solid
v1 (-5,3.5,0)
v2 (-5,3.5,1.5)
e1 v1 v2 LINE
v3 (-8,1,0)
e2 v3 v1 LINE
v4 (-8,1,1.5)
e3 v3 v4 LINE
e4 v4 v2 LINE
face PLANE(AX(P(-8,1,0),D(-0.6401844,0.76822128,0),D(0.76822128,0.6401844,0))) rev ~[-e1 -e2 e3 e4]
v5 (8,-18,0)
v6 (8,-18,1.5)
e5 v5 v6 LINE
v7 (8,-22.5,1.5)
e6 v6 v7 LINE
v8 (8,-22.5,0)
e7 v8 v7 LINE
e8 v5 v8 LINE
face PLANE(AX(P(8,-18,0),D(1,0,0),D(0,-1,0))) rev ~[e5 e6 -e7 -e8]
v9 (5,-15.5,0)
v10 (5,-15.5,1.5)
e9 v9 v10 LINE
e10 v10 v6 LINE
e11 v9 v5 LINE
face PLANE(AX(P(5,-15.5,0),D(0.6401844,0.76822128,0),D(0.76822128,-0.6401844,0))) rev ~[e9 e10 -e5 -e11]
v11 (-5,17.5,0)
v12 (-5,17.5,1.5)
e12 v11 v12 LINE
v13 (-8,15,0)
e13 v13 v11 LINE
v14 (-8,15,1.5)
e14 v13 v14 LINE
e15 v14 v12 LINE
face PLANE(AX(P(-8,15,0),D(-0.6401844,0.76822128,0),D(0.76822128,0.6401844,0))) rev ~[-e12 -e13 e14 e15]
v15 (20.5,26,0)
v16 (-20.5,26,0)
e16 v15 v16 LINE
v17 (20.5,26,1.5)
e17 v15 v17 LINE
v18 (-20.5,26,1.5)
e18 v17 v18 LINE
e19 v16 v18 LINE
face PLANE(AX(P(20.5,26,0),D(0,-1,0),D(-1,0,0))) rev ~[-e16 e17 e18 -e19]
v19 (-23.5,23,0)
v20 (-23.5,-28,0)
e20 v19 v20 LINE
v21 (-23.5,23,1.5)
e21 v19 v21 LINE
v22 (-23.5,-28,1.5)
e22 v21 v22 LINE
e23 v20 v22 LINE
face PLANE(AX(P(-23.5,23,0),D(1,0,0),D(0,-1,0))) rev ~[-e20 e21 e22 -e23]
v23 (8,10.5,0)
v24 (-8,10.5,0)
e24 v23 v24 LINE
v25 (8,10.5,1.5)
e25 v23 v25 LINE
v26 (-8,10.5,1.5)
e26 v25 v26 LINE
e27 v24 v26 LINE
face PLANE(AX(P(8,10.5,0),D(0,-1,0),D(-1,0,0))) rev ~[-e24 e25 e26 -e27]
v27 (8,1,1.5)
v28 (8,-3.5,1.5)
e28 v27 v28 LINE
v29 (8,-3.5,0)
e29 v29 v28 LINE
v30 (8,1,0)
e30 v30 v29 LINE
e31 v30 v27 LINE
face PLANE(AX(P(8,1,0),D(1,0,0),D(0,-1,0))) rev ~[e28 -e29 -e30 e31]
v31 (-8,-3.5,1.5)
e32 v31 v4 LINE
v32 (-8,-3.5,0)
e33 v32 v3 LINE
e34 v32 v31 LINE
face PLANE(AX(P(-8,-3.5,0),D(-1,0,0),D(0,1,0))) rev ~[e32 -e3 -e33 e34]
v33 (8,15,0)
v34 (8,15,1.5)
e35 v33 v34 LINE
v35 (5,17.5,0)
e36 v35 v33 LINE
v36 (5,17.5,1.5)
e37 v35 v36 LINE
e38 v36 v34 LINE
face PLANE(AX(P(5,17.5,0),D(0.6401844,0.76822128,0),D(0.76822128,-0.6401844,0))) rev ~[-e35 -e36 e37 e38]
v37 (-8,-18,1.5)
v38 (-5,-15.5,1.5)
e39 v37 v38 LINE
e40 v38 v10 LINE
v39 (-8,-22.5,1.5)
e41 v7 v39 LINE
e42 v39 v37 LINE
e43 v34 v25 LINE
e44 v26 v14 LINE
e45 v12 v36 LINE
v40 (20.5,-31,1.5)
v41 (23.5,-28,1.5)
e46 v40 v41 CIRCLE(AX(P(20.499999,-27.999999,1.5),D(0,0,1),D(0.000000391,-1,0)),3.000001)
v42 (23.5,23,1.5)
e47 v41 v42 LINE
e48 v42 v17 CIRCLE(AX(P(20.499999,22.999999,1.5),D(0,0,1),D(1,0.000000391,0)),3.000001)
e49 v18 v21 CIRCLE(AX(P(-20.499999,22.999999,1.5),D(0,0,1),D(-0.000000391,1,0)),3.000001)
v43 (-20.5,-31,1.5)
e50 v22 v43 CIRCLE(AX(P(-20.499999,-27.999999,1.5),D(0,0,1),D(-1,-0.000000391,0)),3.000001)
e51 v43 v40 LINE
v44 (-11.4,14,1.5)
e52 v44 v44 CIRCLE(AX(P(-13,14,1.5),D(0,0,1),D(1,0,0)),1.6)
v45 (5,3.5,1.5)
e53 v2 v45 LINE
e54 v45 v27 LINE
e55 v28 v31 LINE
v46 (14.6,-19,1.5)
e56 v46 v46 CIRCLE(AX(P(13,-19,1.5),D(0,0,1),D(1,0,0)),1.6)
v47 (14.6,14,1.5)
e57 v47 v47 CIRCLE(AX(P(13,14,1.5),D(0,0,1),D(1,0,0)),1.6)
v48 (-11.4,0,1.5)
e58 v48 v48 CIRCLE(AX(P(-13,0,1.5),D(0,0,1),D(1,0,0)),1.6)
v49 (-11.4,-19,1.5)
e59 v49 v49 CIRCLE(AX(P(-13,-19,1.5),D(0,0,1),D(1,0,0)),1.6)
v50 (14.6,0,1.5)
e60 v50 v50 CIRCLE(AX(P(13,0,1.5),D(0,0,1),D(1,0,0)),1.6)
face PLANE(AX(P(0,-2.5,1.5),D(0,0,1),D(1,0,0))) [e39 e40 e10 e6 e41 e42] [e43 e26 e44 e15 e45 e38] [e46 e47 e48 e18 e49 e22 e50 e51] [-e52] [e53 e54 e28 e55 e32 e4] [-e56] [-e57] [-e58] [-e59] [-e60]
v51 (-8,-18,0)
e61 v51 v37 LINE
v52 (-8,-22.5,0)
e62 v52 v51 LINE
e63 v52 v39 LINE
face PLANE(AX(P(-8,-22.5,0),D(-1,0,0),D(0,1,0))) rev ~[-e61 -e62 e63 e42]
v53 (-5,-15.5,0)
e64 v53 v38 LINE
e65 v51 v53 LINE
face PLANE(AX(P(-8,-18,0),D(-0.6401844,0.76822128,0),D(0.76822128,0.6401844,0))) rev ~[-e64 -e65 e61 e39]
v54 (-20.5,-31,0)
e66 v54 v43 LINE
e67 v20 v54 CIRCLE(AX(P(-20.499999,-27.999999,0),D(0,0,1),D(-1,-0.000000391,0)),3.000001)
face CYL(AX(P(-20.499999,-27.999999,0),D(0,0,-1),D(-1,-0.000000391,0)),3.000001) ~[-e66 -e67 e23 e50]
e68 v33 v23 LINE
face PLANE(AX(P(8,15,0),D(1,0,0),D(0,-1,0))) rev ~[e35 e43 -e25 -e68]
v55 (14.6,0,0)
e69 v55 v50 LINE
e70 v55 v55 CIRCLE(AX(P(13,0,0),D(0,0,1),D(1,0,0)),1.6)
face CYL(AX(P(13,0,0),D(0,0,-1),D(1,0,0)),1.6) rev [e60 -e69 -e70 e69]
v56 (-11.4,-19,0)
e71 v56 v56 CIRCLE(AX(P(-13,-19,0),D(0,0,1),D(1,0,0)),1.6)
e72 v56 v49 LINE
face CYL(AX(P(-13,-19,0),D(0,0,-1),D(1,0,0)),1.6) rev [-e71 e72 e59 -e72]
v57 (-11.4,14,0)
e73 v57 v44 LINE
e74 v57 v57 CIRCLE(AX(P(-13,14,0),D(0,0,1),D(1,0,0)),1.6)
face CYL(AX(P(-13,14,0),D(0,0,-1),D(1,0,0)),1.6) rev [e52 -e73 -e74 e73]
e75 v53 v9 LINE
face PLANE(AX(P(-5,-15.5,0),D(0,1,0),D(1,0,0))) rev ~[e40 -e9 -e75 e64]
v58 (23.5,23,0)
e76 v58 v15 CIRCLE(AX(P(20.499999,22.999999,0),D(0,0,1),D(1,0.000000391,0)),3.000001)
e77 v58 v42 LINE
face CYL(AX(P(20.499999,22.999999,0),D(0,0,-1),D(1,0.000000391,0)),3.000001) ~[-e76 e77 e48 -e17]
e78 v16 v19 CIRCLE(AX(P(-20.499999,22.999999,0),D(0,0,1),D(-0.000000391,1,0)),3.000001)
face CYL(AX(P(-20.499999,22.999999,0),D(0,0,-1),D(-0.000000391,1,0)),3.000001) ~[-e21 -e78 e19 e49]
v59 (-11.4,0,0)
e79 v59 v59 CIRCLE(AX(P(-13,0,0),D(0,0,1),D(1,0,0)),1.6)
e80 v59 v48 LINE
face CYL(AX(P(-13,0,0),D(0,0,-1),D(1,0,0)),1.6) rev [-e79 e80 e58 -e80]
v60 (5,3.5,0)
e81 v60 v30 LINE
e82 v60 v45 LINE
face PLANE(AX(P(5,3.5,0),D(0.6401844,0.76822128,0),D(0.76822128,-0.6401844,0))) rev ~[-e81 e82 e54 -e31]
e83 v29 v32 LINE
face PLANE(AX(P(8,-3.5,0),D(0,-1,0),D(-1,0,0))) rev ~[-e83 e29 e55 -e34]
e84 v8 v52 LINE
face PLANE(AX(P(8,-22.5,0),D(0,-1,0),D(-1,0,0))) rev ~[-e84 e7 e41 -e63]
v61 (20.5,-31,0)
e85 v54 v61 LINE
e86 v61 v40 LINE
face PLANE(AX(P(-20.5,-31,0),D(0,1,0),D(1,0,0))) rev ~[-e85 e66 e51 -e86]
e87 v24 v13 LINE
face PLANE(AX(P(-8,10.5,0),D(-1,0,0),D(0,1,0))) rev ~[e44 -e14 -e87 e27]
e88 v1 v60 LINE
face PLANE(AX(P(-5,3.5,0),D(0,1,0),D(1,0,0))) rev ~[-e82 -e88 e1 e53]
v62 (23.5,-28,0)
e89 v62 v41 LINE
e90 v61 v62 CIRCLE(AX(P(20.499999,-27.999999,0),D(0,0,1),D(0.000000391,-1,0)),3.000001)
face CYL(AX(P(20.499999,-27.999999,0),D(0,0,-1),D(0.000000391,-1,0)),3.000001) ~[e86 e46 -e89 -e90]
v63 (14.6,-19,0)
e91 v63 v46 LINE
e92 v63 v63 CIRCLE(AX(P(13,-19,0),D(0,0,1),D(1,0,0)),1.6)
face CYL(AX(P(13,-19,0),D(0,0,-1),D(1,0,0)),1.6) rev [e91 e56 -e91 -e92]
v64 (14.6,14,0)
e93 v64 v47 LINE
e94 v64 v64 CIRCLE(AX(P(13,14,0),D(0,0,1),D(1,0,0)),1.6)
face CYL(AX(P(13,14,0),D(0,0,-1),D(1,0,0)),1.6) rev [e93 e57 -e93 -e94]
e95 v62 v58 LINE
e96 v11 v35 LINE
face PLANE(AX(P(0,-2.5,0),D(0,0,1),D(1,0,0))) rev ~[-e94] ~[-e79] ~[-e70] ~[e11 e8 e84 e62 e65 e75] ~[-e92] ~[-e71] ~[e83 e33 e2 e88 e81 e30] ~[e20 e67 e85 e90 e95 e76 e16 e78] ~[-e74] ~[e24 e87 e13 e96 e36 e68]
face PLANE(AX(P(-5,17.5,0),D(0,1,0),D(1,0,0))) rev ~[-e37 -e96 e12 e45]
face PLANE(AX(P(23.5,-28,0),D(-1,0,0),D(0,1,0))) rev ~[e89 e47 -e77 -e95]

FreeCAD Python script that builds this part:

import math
import FreeCAD as App
import Part
import Sketcher
from FreeCAD import Vector
Q = App.Units.Quantity


def add_polygon(sketch, points):
    """Adds a closed chain of lines whose ends are joined by coincident constraints."""
    first, n = sketch.GeometryCount, len(points)
    for a, b in zip(points, points[1:] + points[:1]):
        sketch.addGeometry(Part.LineSegment(App.Vector(*a, 0), App.Vector(*b, 0)), False)
    for i in range(n):
        sketch.addConstraint(Sketcher.Constraint("Coincident", first + i, 2, first + (i + 1) % n, 1))

doc = App.newDocument("Part")
params = doc.addObject("Spreadsheet::Sheet", "Params")
for row, (alias, value) in enumerate([
    ("sketch1_radius", "3.000001 mm"),
    ("sketch1_diameter", "3.2 mm"),
    ("sketch1_width", "41 mm"),
    ("sketch1_width2", "10 mm"),
    ("sketch1_width3", "16 mm"),
    ("pad1_length", "1.5 mm"),
], start=1):
    params.set(f"A{row}", alias)
    params.set(f"B{row}", "=" + value)
    params.setAlias(f"B{row}", alias)

body = doc.addObject("PartDesign::Body", "Body")

sketch1 = body.newObject("Sketcher::SketchObject", "Sketch")
sketch1.AttachmentSupport = (doc.getObject("XY_Plane"), [""])
sketch1.MapMode = "FlatFace"
sketch1.addGeometry(Part.LineSegment(Vector(-20.5, -31, 0), Vector(20.5, -31, 0)), False)
sketch1.addGeometry(Part.ArcOfCircle(Part.Circle(Vector(20.5, -28, 0), Vector(0, 0, 1), 3), math.radians(-90), math.radians(0)), False)
sketch1.addGeometry(Part.LineSegment(Vector(23.5, -28, 0), Vector(23.5, 23, 0)), False)
sketch1.addGeometry(Part.ArcOfCircle(Part.Circle(Vector(20.5, 23, 0), Vector(0, 0, 1), 3), math.radians(0), math.radians(90)), False)
sketch1.addGeometry(Part.LineSegment(Vector(20.5, 26, 0), Vector(-20.5, 26, 0)), False)
sketch1.addGeometry(Part.ArcOfCircle(Part.Circle(Vector(-20.5, 23, 0), Vector(0, 0, 1), 3), math.radians(90), math.radians(180)), False)
sketch1.addGeometry(Part.LineSegment(Vector(-23.5, 23, 0), Vector(-23.5, -28, 0)), False)
sketch1.addGeometry(Part.ArcOfCircle(Part.Circle(Vector(-20.5, -28, 0), Vector(0, 0, 1), 3), math.radians(-180), math.radians(-90)), False)
sketch1.addGeometry(Part.Circle(Vector(-13, -19, 0), Vector(0, 0, 1), 1.6), False)
add_polygon(sketch1, [(-8, -22.5), (-8, -18), (-5, -15.5), (5, -15.5), (8, -18), (8, -22.5)])
sketch1.addGeometry(Part.Circle(Vector(13, -19, 0), Vector(0, 0, 1), 1.6), False)
sketch1.addGeometry(Part.Circle(Vector(-13, 0, 0), Vector(0, 0, 1), 1.6), False)
add_polygon(sketch1, [(-8, -3.5), (-8, 1), (-5, 3.5), (5, 3.5), (8, 1), (8, -3.5)])
sketch1.addGeometry(Part.Circle(Vector(-13, 14, 0), Vector(0, 0, 1), 1.6), False)
add_polygon(sketch1, [(-8, 10.5), (-8, 15), (-5, 17.5), (5, 17.5), (8, 15), (8, 10.5)])
sketch1.addGeometry(Part.Circle(Vector(13, 0, 0), Vector(0, 0, 1), 1.6), False)
sketch1.addGeometry(Part.Circle(Vector(13, 14, 0), Vector(0, 0, 1), 1.6), False)
sketch1.addConstraint(Sketcher.Constraint("Tangent", 0, 2, 1, 1))
sketch1.addConstraint(Sketcher.Constraint("Tangent", 1, 2, 2, 1))
sketch1.addConstraint(Sketcher.Constraint("Tangent", 2, 2, 3, 1))
sketch1.addConstraint(Sketcher.Constraint("Tangent", 3, 2, 4, 1))
sketch1.addConstraint(Sketcher.Constraint("Tangent", 4, 2, 5, 1))
sketch1.addConstraint(Sketcher.Constraint("Tangent", 5, 2, 6, 1))
sketch1.addConstraint(Sketcher.Constraint("Tangent", 6, 2, 7, 1))
sketch1.addConstraint(Sketcher.Constraint("Tangent", 7, 2, 0, 1))
sketch1.addConstraint(Sketcher.Constraint("Horizontal", 0))
sketch1.addConstraint(Sketcher.Constraint("Vertical", 2))
sketch1.addConstraint(Sketcher.Constraint("Horizontal", 4))
sketch1.addConstraint(Sketcher.Constraint("Vertical", 6))
sketch1.addConstraint(Sketcher.Constraint("Vertical", 9))
sketch1.addConstraint(Sketcher.Constraint("Horizontal", 11))
sketch1.addConstraint(Sketcher.Constraint("Vertical", 13))
sketch1.addConstraint(Sketcher.Constraint("Horizontal", 14))
sketch1.addConstraint(Sketcher.Constraint("Vertical", 17))
sketch1.addConstraint(Sketcher.Constraint("Horizontal", 19))
sketch1.addConstraint(Sketcher.Constraint("Vertical", 21))
sketch1.addConstraint(Sketcher.Constraint("Horizontal", 22))
sketch1.addConstraint(Sketcher.Constraint("Vertical", 24))
sketch1.addConstraint(Sketcher.Constraint("Horizontal", 26))
sketch1.addConstraint(Sketcher.Constraint("Vertical", 28))
sketch1.addConstraint(Sketcher.Constraint("Horizontal", 29))
sketch1.addConstraint(Sketcher.Constraint("Equal", 1, 3))
sketch1.addConstraint(Sketcher.Constraint("Equal", 3, 5))
sketch1.addConstraint(Sketcher.Constraint("Equal", 5, 7))
sketch1.addConstraint(Sketcher.Constraint("Equal", 8, 15))
sketch1.addConstraint(Sketcher.Constraint("Equal", 15, 16))
sketch1.addConstraint(Sketcher.Constraint("Equal", 16, 23))
sketch1.addConstraint(Sketcher.Constraint("Equal", 23, 30))
sketch1.addConstraint(Sketcher.Constraint("Equal", 30, 31))
sketch1.addConstraint(Sketcher.Constraint("Symmetric", 16, 3, 30, 3, -1, 1))
sketch1.addConstraint(Sketcher.Constraint("Symmetric", 8, 3, 15, 3, -2))
sketch1.addConstraint(Sketcher.Constraint("Symmetric", 23, 3, 31, 3, -2))
sketch1.addConstraint(Sketcher.Constraint("Symmetric", 9, 2, 12, 2, -2))
sketch1.addConstraint(Sketcher.Constraint("Symmetric", 17, 2, 20, 2, -2))
sketch1.addConstraint(Sketcher.Constraint("Symmetric", 24, 2, 27, 2, -2))
sketch1.addConstraint(Sketcher.Constraint("PointOnObject", 16, 3, -1))
sketch1.addConstraint(Sketcher.Constraint("Parallel", 10, 18))
sketch1.addConstraint(Sketcher.Constraint("Parallel", 12, 20))
sketch1.addConstraint(Sketcher.Constraint("Parallel", 18, 25))
sketch1.addConstraint(Sketcher.Constraint("Parallel", 20, 27))
sketch1.addConstraint(Sketcher.Constraint("Vertical", 8, 3, 16, 3))
sketch1.addConstraint(Sketcher.Constraint("Vertical", 16, 3, 23, 3))
sketch1.addConstraint(Sketcher.Constraint("Vertical", 14, 2, 17, 2))
sketch1.addConstraint(Sketcher.Constraint("Vertical", 10, 2, 18, 2))
sketch1.addConstraint(Sketcher.Constraint("Vertical", 22, 2, 24, 2))
sketch1.addConstraint(Sketcher.Constraint("Vertical", 18, 2, 25, 2))
sketch1.addConstraint(Sketcher.Constraint("Equal", 13, 17))
sketch1.addConstraint(Sketcher.Constraint("Equal", 21, 24))
sketch1.addConstraint(Sketcher.Constraint("Equal", 10, 12))
sketch1.addConstraint(Sketcher.Constraint("Radius", 1, Q("3.000001 mm")))
sketch1.addConstraint(Sketcher.Constraint("Diameter", 8, Q("3.2 mm")))
sketch1.addConstraint(Sketcher.Constraint("DistanceX", 0, 1, 0, 2, Q("41 mm")))
sketch1.addConstraint(Sketcher.Constraint("DistanceX", 11, 1, 11, 2, Q("10 mm")))
sketch1.addConstraint(Sketcher.Constraint("DistanceX", 14, 2, 14, 1, Q("16 mm")))
sketch1.addConstraint(Sketcher.Constraint("DistanceY", 2, 1, 2, 2, Q("51 mm")))
sketch1.addConstraint(Sketcher.Constraint("DistanceY", 9, 1, 9, 2, Q("4.5 mm")))
sketch1.addConstraint(Sketcher.Constraint("DistanceY", 1, 3, -1, 1, Q("27.999999 mm")))
sketch1.addConstraint(Sketcher.Constraint("DistanceX", 8, 3, -1, 1, Q("13 mm")))
sketch1.addConstraint(Sketcher.Constraint("DistanceY", 8, 3, -1, 1, Q("19 mm")))
sketch1.addConstraint(Sketcher.Constraint("DistanceY", -1, 1, 23, 3, Q("14 mm")))
sketch1.addConstraint(Sketcher.Constraint("DistanceY", 9, 2, -1, 1, Q("18 mm")))
sketch1.addConstraint(Sketcher.Constraint("DistanceY", -1, 1, 17, 2, Q("1 mm")))
sketch1.addConstraint(Sketcher.Constraint("DistanceY", -1, 1, 24, 2, Q("15 mm")))
sketch1.addConstraint(Sketcher.Constraint("DistanceY", 13, 2, 11, 2, Q("7 mm")))
sketch1.addConstraint(Sketcher.Constraint("DistanceX", -1, 1, 1, 3, Q("20.499999 mm")))
sketch1.setExpression("Constraints[70]", "Params.sketch1_radius")
sketch1.setExpression("Constraints[71]", "Params.sketch1_diameter")
sketch1.setExpression("Constraints[72]", "Params.sketch1_width")
sketch1.setExpression("Constraints[73]", "Params.sketch1_width2")
sketch1.setExpression("Constraints[74]", "Params.sketch1_width3")
pad1 = body.newObject("PartDesign::Pad", "Pad")
pad1.Profile = sketch1
pad1.setExpression("Length", "Params.pad1_length")

doc.recompute()
